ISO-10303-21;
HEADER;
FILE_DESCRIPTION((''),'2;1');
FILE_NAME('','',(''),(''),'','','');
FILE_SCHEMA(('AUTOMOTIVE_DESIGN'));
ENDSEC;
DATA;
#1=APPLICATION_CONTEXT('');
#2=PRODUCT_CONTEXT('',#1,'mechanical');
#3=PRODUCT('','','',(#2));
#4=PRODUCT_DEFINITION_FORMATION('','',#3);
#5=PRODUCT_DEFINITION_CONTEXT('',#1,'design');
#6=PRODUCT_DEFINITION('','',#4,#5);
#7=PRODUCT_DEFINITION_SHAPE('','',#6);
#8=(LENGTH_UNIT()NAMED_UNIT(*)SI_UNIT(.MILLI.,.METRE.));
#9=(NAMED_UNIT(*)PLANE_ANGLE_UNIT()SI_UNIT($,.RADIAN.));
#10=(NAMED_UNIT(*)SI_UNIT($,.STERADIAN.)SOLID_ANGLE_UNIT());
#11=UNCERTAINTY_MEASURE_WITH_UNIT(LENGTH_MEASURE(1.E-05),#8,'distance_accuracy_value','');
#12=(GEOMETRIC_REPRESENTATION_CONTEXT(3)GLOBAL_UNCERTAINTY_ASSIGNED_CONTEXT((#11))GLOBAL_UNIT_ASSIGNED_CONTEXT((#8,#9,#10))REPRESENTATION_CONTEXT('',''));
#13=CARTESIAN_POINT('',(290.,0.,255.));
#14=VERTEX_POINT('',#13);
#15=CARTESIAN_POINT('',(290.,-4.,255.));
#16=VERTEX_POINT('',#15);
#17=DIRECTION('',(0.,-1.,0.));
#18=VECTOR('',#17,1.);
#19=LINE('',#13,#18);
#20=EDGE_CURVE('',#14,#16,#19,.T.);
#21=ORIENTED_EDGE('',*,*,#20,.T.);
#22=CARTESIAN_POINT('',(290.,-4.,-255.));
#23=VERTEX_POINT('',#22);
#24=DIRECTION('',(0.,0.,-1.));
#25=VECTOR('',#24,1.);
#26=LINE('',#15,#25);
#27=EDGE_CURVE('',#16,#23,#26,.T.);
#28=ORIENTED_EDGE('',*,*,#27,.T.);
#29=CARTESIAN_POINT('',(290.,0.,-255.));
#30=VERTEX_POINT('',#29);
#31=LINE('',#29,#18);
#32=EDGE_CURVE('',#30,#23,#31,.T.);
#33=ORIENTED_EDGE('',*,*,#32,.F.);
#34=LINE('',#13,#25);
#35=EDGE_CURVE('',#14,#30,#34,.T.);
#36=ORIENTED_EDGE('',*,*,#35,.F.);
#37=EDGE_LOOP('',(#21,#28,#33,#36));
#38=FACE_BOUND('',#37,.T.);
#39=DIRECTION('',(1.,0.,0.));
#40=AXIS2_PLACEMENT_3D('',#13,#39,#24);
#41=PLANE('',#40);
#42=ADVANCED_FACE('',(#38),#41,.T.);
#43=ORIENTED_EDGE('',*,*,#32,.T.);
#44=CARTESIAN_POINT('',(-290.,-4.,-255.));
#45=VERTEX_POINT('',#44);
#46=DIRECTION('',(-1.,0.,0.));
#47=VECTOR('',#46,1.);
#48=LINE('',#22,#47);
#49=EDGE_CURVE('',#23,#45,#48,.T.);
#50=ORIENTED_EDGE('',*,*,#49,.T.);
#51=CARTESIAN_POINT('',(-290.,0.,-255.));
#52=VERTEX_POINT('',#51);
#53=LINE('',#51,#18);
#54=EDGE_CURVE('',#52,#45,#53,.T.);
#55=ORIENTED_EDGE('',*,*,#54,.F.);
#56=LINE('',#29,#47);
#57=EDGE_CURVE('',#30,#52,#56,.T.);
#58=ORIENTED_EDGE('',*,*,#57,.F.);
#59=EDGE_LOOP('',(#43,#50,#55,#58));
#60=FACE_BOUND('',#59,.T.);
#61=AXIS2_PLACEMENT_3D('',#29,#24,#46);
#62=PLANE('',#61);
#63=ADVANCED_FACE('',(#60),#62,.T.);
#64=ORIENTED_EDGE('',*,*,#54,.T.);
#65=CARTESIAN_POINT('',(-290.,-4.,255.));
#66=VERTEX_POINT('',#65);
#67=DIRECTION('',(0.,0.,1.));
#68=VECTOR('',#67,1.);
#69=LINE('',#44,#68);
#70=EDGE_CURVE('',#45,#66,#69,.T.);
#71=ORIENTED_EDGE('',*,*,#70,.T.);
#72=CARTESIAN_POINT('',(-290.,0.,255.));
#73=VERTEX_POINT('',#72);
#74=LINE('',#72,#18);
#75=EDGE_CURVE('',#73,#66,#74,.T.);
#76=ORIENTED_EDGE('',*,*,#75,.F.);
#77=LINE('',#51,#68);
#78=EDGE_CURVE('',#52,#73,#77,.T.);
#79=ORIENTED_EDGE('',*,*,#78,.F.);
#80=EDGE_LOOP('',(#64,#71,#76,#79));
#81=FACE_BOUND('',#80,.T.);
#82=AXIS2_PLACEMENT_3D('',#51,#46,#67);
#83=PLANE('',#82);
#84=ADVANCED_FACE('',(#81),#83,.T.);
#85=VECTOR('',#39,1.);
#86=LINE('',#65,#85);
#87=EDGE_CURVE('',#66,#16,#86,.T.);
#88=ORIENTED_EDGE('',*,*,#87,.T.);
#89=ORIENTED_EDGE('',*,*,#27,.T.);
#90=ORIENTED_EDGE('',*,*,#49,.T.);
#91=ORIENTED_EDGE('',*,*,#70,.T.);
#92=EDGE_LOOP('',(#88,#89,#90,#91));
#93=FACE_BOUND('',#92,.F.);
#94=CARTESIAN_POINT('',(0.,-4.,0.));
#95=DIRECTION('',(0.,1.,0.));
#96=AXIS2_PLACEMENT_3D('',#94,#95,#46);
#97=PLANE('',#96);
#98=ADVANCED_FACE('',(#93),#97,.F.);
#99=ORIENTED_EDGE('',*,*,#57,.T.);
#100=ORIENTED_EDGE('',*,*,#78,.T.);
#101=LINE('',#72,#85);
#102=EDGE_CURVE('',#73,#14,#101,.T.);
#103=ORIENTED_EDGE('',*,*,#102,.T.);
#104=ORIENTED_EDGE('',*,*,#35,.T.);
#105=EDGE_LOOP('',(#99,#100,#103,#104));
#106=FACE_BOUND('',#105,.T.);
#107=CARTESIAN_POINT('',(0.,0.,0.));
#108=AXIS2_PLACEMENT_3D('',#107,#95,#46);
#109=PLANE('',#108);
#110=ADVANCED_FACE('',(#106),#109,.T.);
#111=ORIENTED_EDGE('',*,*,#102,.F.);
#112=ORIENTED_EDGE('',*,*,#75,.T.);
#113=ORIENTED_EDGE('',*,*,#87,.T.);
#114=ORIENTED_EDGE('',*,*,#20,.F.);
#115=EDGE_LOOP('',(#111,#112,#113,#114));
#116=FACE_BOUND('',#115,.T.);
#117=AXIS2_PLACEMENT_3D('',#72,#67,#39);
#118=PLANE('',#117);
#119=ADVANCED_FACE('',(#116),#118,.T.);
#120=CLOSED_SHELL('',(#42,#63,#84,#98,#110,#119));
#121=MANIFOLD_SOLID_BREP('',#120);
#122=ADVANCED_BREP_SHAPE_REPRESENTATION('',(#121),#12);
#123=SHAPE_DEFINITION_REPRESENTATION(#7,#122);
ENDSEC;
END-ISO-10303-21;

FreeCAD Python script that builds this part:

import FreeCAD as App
import Part
import Sketcher

doc = App.newDocument("Part")
body = doc.addObject("PartDesign::Body", "Body")

# Sketch on XZ plane
sketch1 = body.newObject("Sketcher::SketchObject", "Sketch")
sketch1.AttachmentSupport = (doc.getObject("XZ_Plane"), [""])
sketch1.MapMode = "FlatFace"
sketch1.addGeometry([
    Part.LineSegment(App.Vector(-290, -255, 0), App.Vector(-290, 255, 0)),
    Part.LineSegment(App.Vector(-290, 255, 0), App.Vector(290, 255, 0)),
    Part.LineSegment(App.Vector(290, 255, 0), App.Vector(290, -255, 0)),
    Part.LineSegment(App.Vector(290, -255, 0), App.Vector(-290, -255, 0)),
], False)
sketch1.addConstraint([
    Sketcher.Constraint("Coincident", 0, 2, 1, 1),
    Sketcher.Constraint("Coincident", 1, 2, 2, 1),
    Sketcher.Constraint("Coincident", 2, 2, 3, 1),
    Sketcher.Constraint("Coincident", 3, 2, 0, 1),
    Sketcher.Constraint("Vertical", 0),
    Sketcher.Constraint("Horizontal", 1),
    Sketcher.Constraint("Vertical", 2),
    Sketcher.Constraint("Horizontal", 3),
    Sketcher.Constraint("Symmetric", 0, 2, 2, 2, -1, 1),
    Sketcher.Constraint("DistanceX", 1, 1, 1, 2, 580.0),
    Sketcher.Constraint("DistanceY", 0, 1, 0, 2, 510.0),
])
pad1 = body.newObject("PartDesign::Pad", "Pad")
pad1.Profile = sketch1
pad1.Length = 4

doc.recompute()
